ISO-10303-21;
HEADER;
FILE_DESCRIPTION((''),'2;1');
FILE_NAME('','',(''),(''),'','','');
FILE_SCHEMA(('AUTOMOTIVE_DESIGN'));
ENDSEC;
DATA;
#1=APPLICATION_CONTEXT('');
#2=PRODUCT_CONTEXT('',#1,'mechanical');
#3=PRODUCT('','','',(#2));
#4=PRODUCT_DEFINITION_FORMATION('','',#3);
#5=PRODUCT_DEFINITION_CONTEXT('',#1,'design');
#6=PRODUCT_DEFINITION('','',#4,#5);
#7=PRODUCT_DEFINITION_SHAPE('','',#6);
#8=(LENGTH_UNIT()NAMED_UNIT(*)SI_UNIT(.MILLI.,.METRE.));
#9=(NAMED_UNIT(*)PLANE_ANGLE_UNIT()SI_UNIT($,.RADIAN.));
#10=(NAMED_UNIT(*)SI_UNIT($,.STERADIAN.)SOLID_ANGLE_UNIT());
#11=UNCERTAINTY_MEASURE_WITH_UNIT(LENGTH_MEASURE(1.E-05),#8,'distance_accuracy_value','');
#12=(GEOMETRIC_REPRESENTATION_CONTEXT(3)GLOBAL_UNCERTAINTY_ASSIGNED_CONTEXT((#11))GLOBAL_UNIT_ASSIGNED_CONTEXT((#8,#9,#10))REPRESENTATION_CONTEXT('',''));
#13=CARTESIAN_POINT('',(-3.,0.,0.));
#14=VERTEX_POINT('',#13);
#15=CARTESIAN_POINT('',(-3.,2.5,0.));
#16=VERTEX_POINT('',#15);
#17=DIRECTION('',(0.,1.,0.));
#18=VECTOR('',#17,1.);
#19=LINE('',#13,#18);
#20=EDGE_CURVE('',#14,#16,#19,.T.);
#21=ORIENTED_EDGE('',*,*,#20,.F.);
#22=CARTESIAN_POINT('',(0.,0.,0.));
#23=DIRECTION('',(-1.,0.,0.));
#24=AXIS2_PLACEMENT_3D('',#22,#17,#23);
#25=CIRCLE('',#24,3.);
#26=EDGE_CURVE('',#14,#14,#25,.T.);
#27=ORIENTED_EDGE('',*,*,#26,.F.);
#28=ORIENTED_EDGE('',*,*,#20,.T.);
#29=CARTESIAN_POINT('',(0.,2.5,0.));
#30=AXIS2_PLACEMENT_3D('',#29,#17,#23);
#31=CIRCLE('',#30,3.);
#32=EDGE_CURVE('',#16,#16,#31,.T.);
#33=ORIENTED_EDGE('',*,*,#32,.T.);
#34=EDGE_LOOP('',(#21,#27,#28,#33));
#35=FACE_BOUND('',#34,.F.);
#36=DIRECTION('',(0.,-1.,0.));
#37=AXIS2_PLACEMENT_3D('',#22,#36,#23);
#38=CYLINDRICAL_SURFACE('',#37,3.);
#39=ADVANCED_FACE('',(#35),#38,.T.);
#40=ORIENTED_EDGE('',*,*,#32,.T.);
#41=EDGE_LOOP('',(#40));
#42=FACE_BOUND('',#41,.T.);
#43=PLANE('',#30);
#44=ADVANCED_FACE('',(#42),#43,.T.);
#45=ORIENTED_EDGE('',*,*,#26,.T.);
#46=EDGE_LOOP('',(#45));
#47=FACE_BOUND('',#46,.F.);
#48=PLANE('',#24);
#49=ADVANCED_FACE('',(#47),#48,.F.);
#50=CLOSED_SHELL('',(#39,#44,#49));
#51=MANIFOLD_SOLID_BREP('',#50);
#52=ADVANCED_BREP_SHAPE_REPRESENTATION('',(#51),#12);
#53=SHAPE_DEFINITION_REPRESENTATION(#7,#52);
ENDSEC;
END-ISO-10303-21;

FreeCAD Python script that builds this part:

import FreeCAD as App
import Part
import Sketcher

doc = App.newDocument("Part")
body = doc.addObject("PartDesign::Body", "Body")

# Sketch on XZ plane
sketch1 = body.newObject("Sketcher::SketchObject", "Sketch")
sketch1.AttachmentSupport = (doc.getObject("XZ_Plane"), [""])
sketch1.MapMode = "FlatFace"
sketch1.addGeometry(Part.Circle(App.Vector(0, 0, 0), App.Vector(0, 0, 1), 3), False)
sketch1.addConstraint([
    Sketcher.Constraint("Coincident", 0, 3, -1, 1),
    Sketcher.Constraint("Diameter", 0, 6.0),
])
pad1 = body.newObject("PartDesign::Pad", "Pad")
pad1.Profile = sketch1
pad1.Length = 2.5
pad1.Reversed = True

doc.recompute()
